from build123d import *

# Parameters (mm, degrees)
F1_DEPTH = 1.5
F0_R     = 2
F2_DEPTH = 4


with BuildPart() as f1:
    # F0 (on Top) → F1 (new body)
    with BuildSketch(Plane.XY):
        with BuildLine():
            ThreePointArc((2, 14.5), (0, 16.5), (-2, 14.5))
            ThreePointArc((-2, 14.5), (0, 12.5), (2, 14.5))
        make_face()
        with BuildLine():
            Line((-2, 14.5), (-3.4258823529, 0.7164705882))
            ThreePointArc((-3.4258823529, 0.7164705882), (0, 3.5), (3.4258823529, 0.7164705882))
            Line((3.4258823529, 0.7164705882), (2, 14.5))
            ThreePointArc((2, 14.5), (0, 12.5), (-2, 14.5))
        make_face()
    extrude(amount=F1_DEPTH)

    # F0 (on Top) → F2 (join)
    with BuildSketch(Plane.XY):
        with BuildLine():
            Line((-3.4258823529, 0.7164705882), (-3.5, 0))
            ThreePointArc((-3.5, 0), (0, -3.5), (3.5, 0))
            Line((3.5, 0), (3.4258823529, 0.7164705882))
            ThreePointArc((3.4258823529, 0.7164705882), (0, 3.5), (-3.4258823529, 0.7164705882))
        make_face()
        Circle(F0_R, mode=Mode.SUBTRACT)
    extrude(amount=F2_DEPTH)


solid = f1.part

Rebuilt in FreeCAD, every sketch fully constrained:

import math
import FreeCAD as App
import Part
import Sketcher
from FreeCAD import Vector

doc = App.newDocument("Part")
params = doc.addObject("Spreadsheet::Sheet", "Params")
for row, (alias, value) in enumerate([
    ("sketch1_radius", "2 mm"),
    ("sketch1_radius2", "3.5 mm"),
    ("pad1_length", "1.5 mm"),
    ("sketch2_diameter", "4 mm"),
    ("sketch2_radius", "3.5 mm"),
    ("pad2_length", "4 mm"),
], start=1):
    params.set(f"A{row}", alias)
    params.set(f"B{row}", "=" + value)
    params.setAlias(f"B{row}", alias)

body = doc.addObject("PartDesign::Body", "Body")

# Sketch on XY plane
sketch1 = body.newObject("Sketcher::SketchObject", "Sketch")
sketch1.AttachmentSupport = (doc.getObject("XY_Plane"), [""])
sketch1.MapMode = "FlatFace"
sketch1.addGeometry([
    Part.ArcOfCircle(Part.Circle(Vector(0, 14.5, 0), Vector(0, 0, 1), 2), math.radians(0), math.radians(180)),
    Part.LineSegment(Vector(-2, 14.5, 0), Vector(-3.425882, 0.716471, 0)),
    Part.ArcOfCircle(Part.Circle(Vector(0, 0, 0), Vector(0, 0, 1), 3.5), math.radians(11.812282), math.radians(168.187718)),
    Part.LineSegment(Vector(3.425882, 0.716471, 0), Vector(2, 14.5, 0)),
], False)
sketch1.addConstraint([
    Sketcher.Constraint("Coincident", 0, 2, 1, 1),
    Sketcher.Constraint("Coincident", 1, 2, 2, 2),
    Sketcher.Constraint("Coincident", 2, 1, 3, 1),
    Sketcher.Constraint("Coincident", 3, 2, 0, 1),
    Sketcher.Constraint("Coincident", 2, 3, -1, 1),
    Sketcher.Constraint("Symmetric", 0, 2, 3, 2, -2),
    Sketcher.Constraint("Horizontal", 1, 2, 2, 1),
    Sketcher.Constraint("Radius", 0, 2.0),
    Sketcher.Constraint("Radius", 2, 3.5),
    Sketcher.Constraint("DistanceY", -1, 1, 0, 3, 14.5),
    Sketcher.Constraint("DistanceY", -1, 1, 0, 2, 14.5),
    Sketcher.Constraint("DistanceY", -1, 1, 1, 2, 0.716471),
])
sketch1.setExpression("Constraints[7]", "Params.sketch1_radius")
sketch1.setExpression("Constraints[8]", "Params.sketch1_radius2")
pad1 = body.newObject("PartDesign::Pad", "Pad")
pad1.Profile = sketch1
pad1.setExpression("Length", "Params.pad1_length")

# Sketch on XY plane
sketch2 = body.newObject("Sketcher::SketchObject", "Sketch001")
sketch2.AttachmentSupport = (doc.getObject("XY_Plane"), [""])
sketch2.MapMode = "FlatFace"
sketch2.addGeometry([
    Part.LineSegment(Vector(-3.425882, 0.716471, 0), Vector(-3.5, 0, 0)),  # 0
    Part.ArcOfCircle(Part.Circle(Vector(0, 0, 0), Vector(0, 0, 1), 3.5), math.radians(180), math.radians(360)),  # 1
    Part.LineSegment(Vector(3.5, 0, 0), Vector(3.425882, 0.716471, 0)),  # 2
    Part.ArcOfCircle(Part.Circle(Vector(0, 0, 0), Vector(0, 0, 1), 3.5), math.radians(11.812282), math.radians(168.187718)),  # 3
    Part.Circle(Vector(0, 0, 0), Vector(0, 0, 1), 2),  # 4
], False)
sketch2.addConstraint([
    Sketcher.Constraint("Coincident", 0, 2, 1, 1),
    Sketcher.Constraint("Coincident", 1, 2, 2, 1),
    Sketcher.Constraint("Coincident", 2, 2, 3, 1),
    Sketcher.Constraint("Coincident", 3, 2, 0, 1),
    Sketcher.Constraint("Coincident", 1, 3, -1, 1),
    Sketcher.Constraint("Coincident", 3, 3, -1, 1),
    Sketcher.Constraint("Coincident", 4, 3, -1, 1),
    Sketcher.Constraint("Equal", 1, 3),
    Sketcher.Constraint("PointOnObject", 0, 2, -1),
    Sketcher.Constraint("PointOnObject", 1, 2, -1),
    Sketcher.Constraint("Horizontal", 2, 2, 3, 2),
    Sketcher.Constraint("Diameter", 4, 4.0),
    Sketcher.Constraint("Radius", 1, 3.5),
    Sketcher.Constraint("DistanceY", -1, 1, 2, 2, 0.716471),
])
sketch2.setExpression("Constraints[11]", "Params.sketch2_diameter")
sketch2.setExpression("Constraints[12]", "Params.sketch2_radius")
pad2 = body.newObject("PartDesign::Pad", "Pad001")
pad2.Profile = sketch2
pad2.setExpression("Length", "Params.pad2_length")

doc.recompute()
